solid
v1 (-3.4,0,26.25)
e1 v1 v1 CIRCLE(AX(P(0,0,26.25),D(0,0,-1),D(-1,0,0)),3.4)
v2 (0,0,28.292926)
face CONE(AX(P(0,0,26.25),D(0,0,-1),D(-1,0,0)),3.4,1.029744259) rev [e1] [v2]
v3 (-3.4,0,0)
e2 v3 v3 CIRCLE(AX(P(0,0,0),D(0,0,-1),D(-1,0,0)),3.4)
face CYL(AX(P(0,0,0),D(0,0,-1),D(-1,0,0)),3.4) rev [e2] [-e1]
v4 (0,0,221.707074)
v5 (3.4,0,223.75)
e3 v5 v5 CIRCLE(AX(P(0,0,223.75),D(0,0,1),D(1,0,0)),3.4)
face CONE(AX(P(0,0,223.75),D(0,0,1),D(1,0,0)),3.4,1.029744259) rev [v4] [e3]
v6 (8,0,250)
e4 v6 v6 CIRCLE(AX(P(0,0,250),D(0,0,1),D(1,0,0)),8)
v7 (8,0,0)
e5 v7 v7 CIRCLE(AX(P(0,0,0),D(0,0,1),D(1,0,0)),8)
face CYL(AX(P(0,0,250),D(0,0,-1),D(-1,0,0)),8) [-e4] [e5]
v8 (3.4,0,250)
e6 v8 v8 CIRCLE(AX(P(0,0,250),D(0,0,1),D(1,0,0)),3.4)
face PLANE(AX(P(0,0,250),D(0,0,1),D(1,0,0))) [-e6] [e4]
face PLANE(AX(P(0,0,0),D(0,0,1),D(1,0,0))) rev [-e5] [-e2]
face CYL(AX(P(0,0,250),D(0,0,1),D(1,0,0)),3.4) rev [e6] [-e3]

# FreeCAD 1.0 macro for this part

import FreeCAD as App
import Part
import Sketcher
Q = App.Units.Quantity


def add_polygon(sketch, points):
    """Adds a closed chain of lines whose ends are joined by coincident constraints."""
    first, n = sketch.GeometryCount, len(points)
    for a, b in zip(points, points[1:] + points[:1]):
        sketch.addGeometry(Part.LineSegment(App.Vector(*a, 0), App.Vector(*b, 0)), False)
    for i in range(n):
        sketch.addConstraint(Sketcher.Constraint("Coincident", first + i, 2, first + (i + 1) % n, 1))

doc = App.newDocument("Part")
params = doc.addObject("Spreadsheet::Sheet", "Params")
for row, (alias, value) in enumerate([
    ("sketch1_diameter", "16 mm"),
    ("pad1_length", "250 mm"),
    ("sketch2_width", "3.4 mm"),
    ("sketch2_height", "26.25 mm"),
    ("groove_angle", "360 deg"),
    ("sketch3_diameter", "6.8 mm"),
    ("hole_diameter", "6.8 mm"),
    ("hole_depth", "26.25 mm"),
], start=1):
    params.set(f"A{row}", alias)
    params.set(f"B{row}", "=" + value)
    params.setAlias(f"B{row}", alias)

body = doc.addObject("PartDesign::Body", "Body")

# Sketch on XY plane
sketch1 = doc.addObject("Sketcher::SketchObject", "Sketch")
body.addObject(sketch1)
sketch1.AttachmentSupport = (doc.XY_Plane, [""])
sketch1.MapMode = "FlatFace"
sketch1.addGeometry(Part.Circle(App.Vector(0, 0, 0), App.Vector(0, 0, 1), 8), False)
sketch1.addConstraint([
    Sketcher.Constraint("Coincident", 0, 3, -1, 1),
    Sketcher.Constraint("Diameter", 0, Q("16 mm")),
])
sketch1.setExpression("Constraints[1]", "Params.sketch1_diameter")
pad1 = doc.addObject("PartDesign::Pad", "Pad")
body.addObject(pad1)
pad1.Profile = sketch1
pad1.setExpression("Length", "Params.pad1_length")

# Sketch on YZ plane
sketch2 = doc.addObject("Sketcher::SketchObject", "Sketch001")
body.addObject(sketch2)
sketch2.AttachmentSupport = (doc.YZ_Plane, [""])
sketch2.MapMode = "FlatFace"
add_polygon(sketch2, [(0, 221.707074), (0, 250), (-3.4, 250), (-3.4, 223.75)])  # lines 0-3
sketch2.addConstraint([
    Sketcher.Constraint("Vertical", 0),
    Sketcher.Constraint("Horizontal", 1),
    Sketcher.Constraint("Vertical", 2),
    Sketcher.Constraint("PointOnObject", 0, 2, -2),
    Sketcher.Constraint("Angle", 3, Q("-31 deg")),
    Sketcher.Constraint("DistanceX", 1, 2, 1, 1, Q("3.4 mm")),
    Sketcher.Constraint("DistanceY", -1, 1, 0, 2, Q("250 mm")),
    Sketcher.Constraint("DistanceY", 2, 2, 2, 1, Q("26.25 mm")),
])
sketch2.setExpression("Constraints[9]", "Params.sketch2_width")
sketch2.setExpression("Constraints[11]", "Params.sketch2_height")
groove = doc.addObject("PartDesign::Groove", "Groove")
body.addObject(groove)
groove.Profile = sketch2
groove.ReferenceAxis = (sketch2, ["V_Axis"])
groove.setExpression("Angle", "Params.groove_angle")

# Sketch on XY plane
sketch3 = doc.addObject("Sketcher::SketchObject", "Sketch002")
body.addObject(sketch3)
sketch3.AttachmentSupport = (doc.XY_Plane, [""])
sketch3.MapMode = "FlatFace"
sketch3.addGeometry(Part.Circle(App.Vector(0, 0, 0), App.Vector(0, 0, 1), 3.4), False)
sketch3.addConstraint([
    Sketcher.Constraint("Coincident", 0, 3, -1, 1),
    Sketcher.Constraint("Diameter", 0, Q("6.8 mm")),
])
sketch3.setExpression("Constraints[1]", "Params.sketch3_diameter")
doc.recompute()
hole = doc.addObject("PartDesign::Hole", "Hole")
body.addObject(hole)
hole.Profile = sketch3
hole.ThreadType = "None"
hole.setExpression("Diameter", "Params.hole_diameter")
hole.DepthType = "Dimension"
hole.setExpression("Depth", "Params.hole_depth")
hole.DrillPoint = "Angled"
hole.DrillPointAngle = 118
hole.Reversed = True

doc.recompute()
